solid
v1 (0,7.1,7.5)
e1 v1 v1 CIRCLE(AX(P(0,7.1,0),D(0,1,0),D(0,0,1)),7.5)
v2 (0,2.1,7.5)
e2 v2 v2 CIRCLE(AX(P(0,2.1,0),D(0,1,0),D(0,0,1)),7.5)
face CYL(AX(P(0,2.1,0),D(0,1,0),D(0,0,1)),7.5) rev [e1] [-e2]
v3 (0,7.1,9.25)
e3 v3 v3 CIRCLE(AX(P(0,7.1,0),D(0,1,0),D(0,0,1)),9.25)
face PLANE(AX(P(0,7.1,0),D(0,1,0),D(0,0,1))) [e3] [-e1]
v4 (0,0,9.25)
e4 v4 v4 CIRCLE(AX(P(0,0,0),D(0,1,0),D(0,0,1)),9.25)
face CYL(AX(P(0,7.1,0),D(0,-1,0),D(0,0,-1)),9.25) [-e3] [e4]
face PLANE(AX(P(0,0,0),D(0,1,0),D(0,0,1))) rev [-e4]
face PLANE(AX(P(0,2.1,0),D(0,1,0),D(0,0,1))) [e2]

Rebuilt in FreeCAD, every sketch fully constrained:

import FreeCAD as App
import Part
import Sketcher

V = App.Vector
Q = App.Units.Quantity

doc = App.newDocument("Part")
body = doc.addObject("PartDesign::Body", "Body")

sketch1 = body.newObject("Sketcher::SketchObject", "Sketch")
sketch1.AttachmentSupport = (doc.getObject("XZ_Plane"), [""])
sketch1.MapMode = "FlatFace"
sketch1.addGeometry(Part.Circle(V(0, 0, 0), V(0, 0, 1), 9), False)
sketch1.addConstraint(Sketcher.Constraint("Coincident", 0, 3, -1, 1))
sketch1.addConstraint(Sketcher.Constraint("Diameter", 0, Q("18.5 mm")))
pad1 = body.newObject("PartDesign::Pad", "Pad")
pad1.Profile = sketch1
pad1.Length = 7.1
pad1.Reversed = True

sketch2 = body.newObject("Sketcher::SketchObject", "Sketch001")
sketch2.AttachmentSupport = (doc.getObject("XZ_Plane"), [""])
sketch2.MapMode = "FlatFace"
sketch2.AttachmentOffset = App.Placement(V(0, 0, -7.1), App.Rotation())
sketch2.addGeometry(Part.Circle(V(0, 0, 0), V(0, 0, 1), 8), False)
sketch2.addConstraint(Sketcher.Constraint("Coincident", 0, 3, -1, 1))
sketch2.addConstraint(Sketcher.Constraint("Diameter", 0, Q("15 mm")))
pocket1 = body.newObject("PartDesign::Pocket", "Pocket")
pocket1.Profile = sketch2
pocket1.Length = 5
pocket1.Reversed = True

doc.recompute()
